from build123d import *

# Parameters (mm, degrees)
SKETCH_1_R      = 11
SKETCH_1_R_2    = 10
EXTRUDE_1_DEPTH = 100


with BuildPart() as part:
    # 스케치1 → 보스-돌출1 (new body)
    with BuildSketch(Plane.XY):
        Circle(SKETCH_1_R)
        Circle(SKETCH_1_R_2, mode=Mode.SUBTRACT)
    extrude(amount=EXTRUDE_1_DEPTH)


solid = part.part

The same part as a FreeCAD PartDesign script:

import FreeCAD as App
import Part
import Sketcher
Q = App.Units.Quantity

doc = App.newDocument("Part")
params = doc.addObject("Spreadsheet::Sheet", "Params")
for row, (alias, value) in enumerate([
    ("sketch1_diameter", "22 mm"),
    ("sketch1_diameter2", "20 mm"),
    ("pad1_length", "100 mm"),
], start=1):
    params.set(f"A{row}", alias)
    params.set(f"B{row}", "=" + value)
    params.setAlias(f"B{row}", alias)

body = doc.addObject("PartDesign::Body", "Body")

# Sketch on XY plane
sketch1 = doc.addObject("Sketcher::SketchObject", "Sketch")
body.addObject(sketch1)
sketch1.AttachmentSupport = (doc.XY_Plane, [""])
sketch1.MapMode = "FlatFace"
sketch1.addGeometry(Part.Circle(App.Vector(0, 0, 0), App.Vector(0, 0, 1), 11), False)
sketch1.addGeometry(Part.Circle(App.Vector(0, 0, 0), App.Vector(0, 0, 1), 10), False)
sketch1.addConstraint(Sketcher.Constraint("Coincident", 0, 3, -1, 1))
sketch1.addConstraint(Sketcher.Constraint("Coincident", 1, 3, -1, 1))
sketch1.addConstraint(Sketcher.Constraint("Diameter", 0, Q("22 mm")))
sketch1.addConstraint(Sketcher.Constraint("Diameter", 1, Q("20 mm")))
sketch1.setExpression("Constraints[2]", "Params.sketch1_diameter")
sketch1.setExpression("Constraints[3]", "Params.sketch1_diameter2")
pad1 = doc.addObject("PartDesign::Pad", "Pad")
body.addObject(pad1)
pad1.Profile = sketch1
pad1.setExpression("Length", "Params.pad1_length")

doc.recompute()
